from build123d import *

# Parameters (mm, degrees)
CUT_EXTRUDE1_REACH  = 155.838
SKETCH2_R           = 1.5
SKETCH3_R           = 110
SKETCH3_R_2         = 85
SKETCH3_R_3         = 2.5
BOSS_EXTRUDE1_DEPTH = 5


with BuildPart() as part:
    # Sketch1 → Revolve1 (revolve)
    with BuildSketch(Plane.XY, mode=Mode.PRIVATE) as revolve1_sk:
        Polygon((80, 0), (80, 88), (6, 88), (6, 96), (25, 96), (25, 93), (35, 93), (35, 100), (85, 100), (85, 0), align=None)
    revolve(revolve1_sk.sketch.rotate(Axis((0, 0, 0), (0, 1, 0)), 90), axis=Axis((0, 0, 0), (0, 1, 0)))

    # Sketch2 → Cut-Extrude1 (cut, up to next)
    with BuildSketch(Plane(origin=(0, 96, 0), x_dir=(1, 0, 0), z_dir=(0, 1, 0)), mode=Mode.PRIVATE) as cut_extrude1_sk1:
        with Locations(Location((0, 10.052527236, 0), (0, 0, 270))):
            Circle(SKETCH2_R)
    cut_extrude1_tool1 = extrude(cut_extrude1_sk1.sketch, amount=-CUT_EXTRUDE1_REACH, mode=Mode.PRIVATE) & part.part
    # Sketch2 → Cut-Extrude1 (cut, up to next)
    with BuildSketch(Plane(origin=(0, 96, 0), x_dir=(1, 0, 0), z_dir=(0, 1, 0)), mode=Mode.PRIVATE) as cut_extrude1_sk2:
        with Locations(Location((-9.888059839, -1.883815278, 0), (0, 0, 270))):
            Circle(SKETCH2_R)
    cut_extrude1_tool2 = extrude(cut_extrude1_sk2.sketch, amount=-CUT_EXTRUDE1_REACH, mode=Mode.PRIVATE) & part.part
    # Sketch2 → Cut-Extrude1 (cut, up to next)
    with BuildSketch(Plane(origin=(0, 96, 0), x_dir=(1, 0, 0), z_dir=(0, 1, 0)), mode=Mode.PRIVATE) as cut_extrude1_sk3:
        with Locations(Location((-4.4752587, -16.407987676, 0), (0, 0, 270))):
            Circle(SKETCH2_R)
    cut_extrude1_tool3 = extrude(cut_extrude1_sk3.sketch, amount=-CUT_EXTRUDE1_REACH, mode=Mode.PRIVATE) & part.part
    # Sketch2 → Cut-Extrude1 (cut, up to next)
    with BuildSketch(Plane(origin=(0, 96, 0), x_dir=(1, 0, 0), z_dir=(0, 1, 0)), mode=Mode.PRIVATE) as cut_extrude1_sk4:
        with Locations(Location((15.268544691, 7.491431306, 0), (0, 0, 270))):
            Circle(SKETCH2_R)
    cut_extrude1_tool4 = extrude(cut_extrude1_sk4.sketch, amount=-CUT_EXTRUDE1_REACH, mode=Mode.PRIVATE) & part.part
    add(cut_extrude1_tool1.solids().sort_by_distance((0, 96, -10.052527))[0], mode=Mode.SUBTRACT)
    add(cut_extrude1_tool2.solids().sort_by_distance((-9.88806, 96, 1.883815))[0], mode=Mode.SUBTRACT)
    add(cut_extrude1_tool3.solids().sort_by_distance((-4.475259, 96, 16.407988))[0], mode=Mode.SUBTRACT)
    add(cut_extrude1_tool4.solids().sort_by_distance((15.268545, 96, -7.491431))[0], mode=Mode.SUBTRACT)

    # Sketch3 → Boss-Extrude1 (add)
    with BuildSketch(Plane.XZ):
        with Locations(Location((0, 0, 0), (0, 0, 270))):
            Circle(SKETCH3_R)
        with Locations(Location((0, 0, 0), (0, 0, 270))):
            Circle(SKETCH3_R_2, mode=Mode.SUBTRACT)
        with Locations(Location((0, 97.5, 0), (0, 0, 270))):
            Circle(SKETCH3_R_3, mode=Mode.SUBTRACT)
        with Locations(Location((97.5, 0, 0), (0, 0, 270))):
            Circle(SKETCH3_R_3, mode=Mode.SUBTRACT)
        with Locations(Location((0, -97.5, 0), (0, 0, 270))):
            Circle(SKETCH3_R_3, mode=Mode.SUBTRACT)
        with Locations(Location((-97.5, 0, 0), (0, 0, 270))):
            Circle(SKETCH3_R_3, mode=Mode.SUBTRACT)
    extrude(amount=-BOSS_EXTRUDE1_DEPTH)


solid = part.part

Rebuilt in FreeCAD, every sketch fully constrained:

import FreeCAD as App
import Part
import Sketcher
from FreeCAD import Vector
Q = App.Units.Quantity

doc = App.newDocument("Part")
body = doc.addObject("PartDesign::Body", "Body")

# Sketch on XY plane
sketch1 = body.newObject("Sketcher::SketchObject", "Sketch")
sketch1.AttachmentSupport = (doc.getObject("XY_Plane"), [""])
sketch1.MapMode = "FlatFace"
sketch1.addGeometry([
    Part.LineSegment(Vector(80, 88, 0), Vector(80, 0, 0)),  # 0
    Part.LineSegment(Vector(80, 0, 0), Vector(85, 0, 0)),  # 1
    Part.LineSegment(Vector(85, 0, 0), Vector(85, 100, 0)),  # 2
    Part.LineSegment(Vector(85, 100, 0), Vector(35, 100, 0)),  # 3
    Part.LineSegment(Vector(35, 100, 0), Vector(35, 93, 0)),  # 4
    Part.LineSegment(Vector(35, 93, 0), Vector(25, 93, 0)),  # 5
    Part.LineSegment(Vector(25, 93, 0), Vector(25, 96, 0)),  # 6
    Part.LineSegment(Vector(25, 96, 0), Vector(6, 96, 0)),  # 7
    Part.LineSegment(Vector(6, 96, 0), Vector(6, 88, 0)),  # 8
    Part.LineSegment(Vector(6, 88, 0), Vector(80, 88, 0)),  # 9
], False)
sketch1.addConstraint([
    Sketcher.Constraint("Coincident", 0, 2, 1, 1),
    Sketcher.Constraint("Coincident", 1, 2, 2, 1),
    Sketcher.Constraint("Coincident", 2, 2, 3, 1),
    Sketcher.Constraint("Coincident", 3, 2, 4, 1),
    Sketcher.Constraint("Coincident", 4, 2, 5, 1),
    Sketcher.Constraint("Coincident", 5, 2, 6, 1),
    Sketcher.Constraint("Coincident", 6, 2, 7, 1),
    Sketcher.Constraint("Coincident", 7, 2, 8, 1),
    Sketcher.Constraint("Coincident", 8, 2, 9, 1),
    Sketcher.Constraint("Coincident", 9, 2, 0, 1),
    Sketcher.Constraint("Vertical", 0),
    Sketcher.Constraint("Horizontal", 1),
    Sketcher.Constraint("Vertical", 2),
    Sketcher.Constraint("Horizontal", 3),
    Sketcher.Constraint("Vertical", 4),
    Sketcher.Constraint("Horizontal", 5),
    Sketcher.Constraint("Vertical", 6),
    Sketcher.Constraint("Horizontal", 7),
    Sketcher.Constraint("Vertical", 8),
    Sketcher.Constraint("Horizontal", 9),
    Sketcher.Constraint("PointOnObject", 0, 2, -1),
    Sketcher.Constraint("DistanceX", 1, 1, 1, 2, Q("5 mm")),
    Sketcher.Constraint("DistanceX", 3, 2, 3, 1, Q("50 mm")),
    Sketcher.Constraint("DistanceX", 5, 2, 5, 1, Q("10 mm")),
    Sketcher.Constraint("DistanceX", 7, 2, 7, 1, Q("19 mm")),
    Sketcher.Constraint("DistanceY", 0, 2, 0, 1, Q("88 mm")),
    Sketcher.Constraint("DistanceY", 2, 1, 2, 2, Q("100 mm")),
    Sketcher.Constraint("DistanceY", 4, 2, 4, 1, Q("7 mm")),
    Sketcher.Constraint("DistanceY", 6, 1, 6, 2, Q("3 mm")),
    Sketcher.Constraint("DistanceX", -1, 1, 0, 2, Q("80 mm")),
])
revolution = body.newObject("PartDesign::Revolution", "Revolution")
revolution.Profile = sketch1
revolution.ReferenceAxis = (sketch1, ["V_Axis"])
revolution.Angle = 360

# Sketch on XZ plane
sketch2 = body.newObject("Sketcher::SketchObject", "Sketch001")
sketch2.AttachmentSupport = (doc.getObject("XZ_Plane"), [""])
sketch2.MapMode = "FlatFace"
sketch2.AttachmentOffset = App.Placement(Vector(0, 0, -96), App.Rotation())
sketch2.addGeometry(Part.Circle(Vector(0, -10.1, 0), Vector(0, 0, 1), 1.5), False)
sketch2.addConstraint([
    Sketcher.Constraint("PointOnObject", 0, 3, -2),
    Sketcher.Constraint("Diameter", 0, Q("3 mm")),
    Sketcher.Constraint("DistanceY", 0, 3, -1, 1, Q("10.052527 mm")),
])
pocket1 = body.newObject("PartDesign::Pocket", "Pocket")
pocket1.Profile = sketch2
pocket1.Type = "UpToFirst"
pocket1.Reversed = True

# Sketch on XZ plane
sketch3 = body.newObject("Sketcher::SketchObject", "Sketch002")
sketch3.AttachmentSupport = (doc.getObject("XZ_Plane"), [""])
sketch3.MapMode = "FlatFace"
sketch3.AttachmentOffset = App.Placement(Vector(0, 0, -96), App.Rotation())
sketch3.addGeometry(Part.Circle(Vector(-9.9, 1.9, 0), Vector(0, 0, 1), 1.5), False)
sketch3.addConstraint([
    Sketcher.Constraint("Diameter", 0, Q("3 mm")),
    Sketcher.Constraint("DistanceX", 0, 3, -1, 1, Q("9.88806 mm")),
    Sketcher.Constraint("DistanceY", -1, 1, 0, 3, Q("1.883815 mm")),
])
pocket2 = body.newObject("PartDesign::Pocket", "Pocket001")
pocket2.Profile = sketch3
pocket2.Type = "UpToFirst"
pocket2.Reversed = True

# Sketch on XZ plane
sketch4 = body.newObject("Sketcher::SketchObject", "Sketch003")
sketch4.AttachmentSupport = (doc.getObject("XZ_Plane"), [""])
sketch4.MapMode = "FlatFace"
sketch4.AttachmentOffset = App.Placement(Vector(0, 0, -96), App.Rotation())
sketch4.addGeometry(Part.Circle(Vector(-4.5, 16.4, 0), Vector(0, 0, 1), 1.5), False)
sketch4.addConstraint([
    Sketcher.Constraint("Diameter", 0, Q("3 mm")),
    Sketcher.Constraint("DistanceX", 0, 3, -1, 1, Q("4.475259 mm")),
    Sketcher.Constraint("DistanceY", -1, 1, 0, 3, Q("16.407988 mm")),
])
pocket3 = body.newObject("PartDesign::Pocket", "Pocket002")
pocket3.Profile = sketch4
pocket3.Type = "UpToFirst"
pocket3.Reversed = True

# Sketch on XZ plane
sketch5 = body.newObject("Sketcher::SketchObject", "Sketch004")
sketch5.AttachmentSupport = (doc.getObject("XZ_Plane"), [""])
sketch5.MapMode = "FlatFace"
sketch5.AttachmentOffset = App.Placement(Vector(0, 0, -96), App.Rotation())
sketch5.addGeometry(Part.Circle(Vector(15.3, -7.5, 0), Vector(0, 0, 1), 1.5), False)
sketch5.addConstraint([
    Sketcher.Constraint("Diameter", 0, Q("3 mm")),
    Sketcher.Constraint("DistanceY", 0, 3, -1, 1, Q("7.491431 mm")),
    Sketcher.Constraint("DistanceX", -1, 1, 0, 3, Q("15.268545 mm")),
])
pocket4 = body.newObject("PartDesign::Pocket", "Pocket003")
pocket4.Profile = sketch5
pocket4.Type = "UpToFirst"
pocket4.Reversed = True

# Sketch on XZ plane
sketch6 = body.newObject("Sketcher::SketchObject", "Sketch005")
sketch6.AttachmentSupport = (doc.getObject("XZ_Plane"), [""])
sketch6.MapMode = "FlatFace"
sketch6.addGeometry([
    Part.Circle(Vector(0, 0, 0), Vector(0, 0, 1), 110),  # 0
    Part.Circle(Vector(0, 97.5, 0), Vector(0, 0, 1), 2.5),  # 1
    Part.Circle(Vector(-97.5, 0, 0), Vector(0, 0, 1), 2.5),  # 2
    Part.Circle(Vector(97.5, 0, 0), Vector(0, 0, 1), 2.5),  # 3
    Part.Circle(Vector(0, 0, 0), Vector(0, 0, 1), 85),  # 4
    Part.Circle(Vector(0, -97.5, 0), Vector(0, 0, 1), 2.5),  # 5
], False)
sketch6.addConstraint([
    Sketcher.Constraint("Coincident", 0, 3, -1, 1),
    Sketcher.Constraint("Coincident", 4, 3, -1, 1),
    Sketcher.Constraint("Equal", 1, 2),
    Sketcher.Constraint("Equal", 2, 3),
    Sketcher.Constraint("Equal", 3, 5),
    Sketcher.Constraint("Symmetric", 2, 3, 3, 3, -1, 1),
    Sketcher.Constraint("Symmetric", 1, 3, 5, 3, -1, 1),
    Sketcher.Constraint("PointOnObject", 1, 3, -2),
    Sketcher.Constraint("PointOnObject", 2, 3, -1),
    Sketcher.Constraint("Diameter", 0, Q("220 mm")),
    Sketcher.Constraint("Diameter", 1, Q("5 mm")),
    Sketcher.Constraint("Diameter", 4, Q("170 mm")),
    Sketcher.Constraint("DistanceX", 2, 3, 3, 3, Q("195 mm")),
    Sketcher.Constraint("DistanceY", 5, 3, 1, 3, Q("195 mm")),
])
pad1 = body.newObject("PartDesign::Pad", "Pad")
pad1.Profile = sketch6
pad1.Length = 5
pad1.Reversed = True

doc.recompute()
